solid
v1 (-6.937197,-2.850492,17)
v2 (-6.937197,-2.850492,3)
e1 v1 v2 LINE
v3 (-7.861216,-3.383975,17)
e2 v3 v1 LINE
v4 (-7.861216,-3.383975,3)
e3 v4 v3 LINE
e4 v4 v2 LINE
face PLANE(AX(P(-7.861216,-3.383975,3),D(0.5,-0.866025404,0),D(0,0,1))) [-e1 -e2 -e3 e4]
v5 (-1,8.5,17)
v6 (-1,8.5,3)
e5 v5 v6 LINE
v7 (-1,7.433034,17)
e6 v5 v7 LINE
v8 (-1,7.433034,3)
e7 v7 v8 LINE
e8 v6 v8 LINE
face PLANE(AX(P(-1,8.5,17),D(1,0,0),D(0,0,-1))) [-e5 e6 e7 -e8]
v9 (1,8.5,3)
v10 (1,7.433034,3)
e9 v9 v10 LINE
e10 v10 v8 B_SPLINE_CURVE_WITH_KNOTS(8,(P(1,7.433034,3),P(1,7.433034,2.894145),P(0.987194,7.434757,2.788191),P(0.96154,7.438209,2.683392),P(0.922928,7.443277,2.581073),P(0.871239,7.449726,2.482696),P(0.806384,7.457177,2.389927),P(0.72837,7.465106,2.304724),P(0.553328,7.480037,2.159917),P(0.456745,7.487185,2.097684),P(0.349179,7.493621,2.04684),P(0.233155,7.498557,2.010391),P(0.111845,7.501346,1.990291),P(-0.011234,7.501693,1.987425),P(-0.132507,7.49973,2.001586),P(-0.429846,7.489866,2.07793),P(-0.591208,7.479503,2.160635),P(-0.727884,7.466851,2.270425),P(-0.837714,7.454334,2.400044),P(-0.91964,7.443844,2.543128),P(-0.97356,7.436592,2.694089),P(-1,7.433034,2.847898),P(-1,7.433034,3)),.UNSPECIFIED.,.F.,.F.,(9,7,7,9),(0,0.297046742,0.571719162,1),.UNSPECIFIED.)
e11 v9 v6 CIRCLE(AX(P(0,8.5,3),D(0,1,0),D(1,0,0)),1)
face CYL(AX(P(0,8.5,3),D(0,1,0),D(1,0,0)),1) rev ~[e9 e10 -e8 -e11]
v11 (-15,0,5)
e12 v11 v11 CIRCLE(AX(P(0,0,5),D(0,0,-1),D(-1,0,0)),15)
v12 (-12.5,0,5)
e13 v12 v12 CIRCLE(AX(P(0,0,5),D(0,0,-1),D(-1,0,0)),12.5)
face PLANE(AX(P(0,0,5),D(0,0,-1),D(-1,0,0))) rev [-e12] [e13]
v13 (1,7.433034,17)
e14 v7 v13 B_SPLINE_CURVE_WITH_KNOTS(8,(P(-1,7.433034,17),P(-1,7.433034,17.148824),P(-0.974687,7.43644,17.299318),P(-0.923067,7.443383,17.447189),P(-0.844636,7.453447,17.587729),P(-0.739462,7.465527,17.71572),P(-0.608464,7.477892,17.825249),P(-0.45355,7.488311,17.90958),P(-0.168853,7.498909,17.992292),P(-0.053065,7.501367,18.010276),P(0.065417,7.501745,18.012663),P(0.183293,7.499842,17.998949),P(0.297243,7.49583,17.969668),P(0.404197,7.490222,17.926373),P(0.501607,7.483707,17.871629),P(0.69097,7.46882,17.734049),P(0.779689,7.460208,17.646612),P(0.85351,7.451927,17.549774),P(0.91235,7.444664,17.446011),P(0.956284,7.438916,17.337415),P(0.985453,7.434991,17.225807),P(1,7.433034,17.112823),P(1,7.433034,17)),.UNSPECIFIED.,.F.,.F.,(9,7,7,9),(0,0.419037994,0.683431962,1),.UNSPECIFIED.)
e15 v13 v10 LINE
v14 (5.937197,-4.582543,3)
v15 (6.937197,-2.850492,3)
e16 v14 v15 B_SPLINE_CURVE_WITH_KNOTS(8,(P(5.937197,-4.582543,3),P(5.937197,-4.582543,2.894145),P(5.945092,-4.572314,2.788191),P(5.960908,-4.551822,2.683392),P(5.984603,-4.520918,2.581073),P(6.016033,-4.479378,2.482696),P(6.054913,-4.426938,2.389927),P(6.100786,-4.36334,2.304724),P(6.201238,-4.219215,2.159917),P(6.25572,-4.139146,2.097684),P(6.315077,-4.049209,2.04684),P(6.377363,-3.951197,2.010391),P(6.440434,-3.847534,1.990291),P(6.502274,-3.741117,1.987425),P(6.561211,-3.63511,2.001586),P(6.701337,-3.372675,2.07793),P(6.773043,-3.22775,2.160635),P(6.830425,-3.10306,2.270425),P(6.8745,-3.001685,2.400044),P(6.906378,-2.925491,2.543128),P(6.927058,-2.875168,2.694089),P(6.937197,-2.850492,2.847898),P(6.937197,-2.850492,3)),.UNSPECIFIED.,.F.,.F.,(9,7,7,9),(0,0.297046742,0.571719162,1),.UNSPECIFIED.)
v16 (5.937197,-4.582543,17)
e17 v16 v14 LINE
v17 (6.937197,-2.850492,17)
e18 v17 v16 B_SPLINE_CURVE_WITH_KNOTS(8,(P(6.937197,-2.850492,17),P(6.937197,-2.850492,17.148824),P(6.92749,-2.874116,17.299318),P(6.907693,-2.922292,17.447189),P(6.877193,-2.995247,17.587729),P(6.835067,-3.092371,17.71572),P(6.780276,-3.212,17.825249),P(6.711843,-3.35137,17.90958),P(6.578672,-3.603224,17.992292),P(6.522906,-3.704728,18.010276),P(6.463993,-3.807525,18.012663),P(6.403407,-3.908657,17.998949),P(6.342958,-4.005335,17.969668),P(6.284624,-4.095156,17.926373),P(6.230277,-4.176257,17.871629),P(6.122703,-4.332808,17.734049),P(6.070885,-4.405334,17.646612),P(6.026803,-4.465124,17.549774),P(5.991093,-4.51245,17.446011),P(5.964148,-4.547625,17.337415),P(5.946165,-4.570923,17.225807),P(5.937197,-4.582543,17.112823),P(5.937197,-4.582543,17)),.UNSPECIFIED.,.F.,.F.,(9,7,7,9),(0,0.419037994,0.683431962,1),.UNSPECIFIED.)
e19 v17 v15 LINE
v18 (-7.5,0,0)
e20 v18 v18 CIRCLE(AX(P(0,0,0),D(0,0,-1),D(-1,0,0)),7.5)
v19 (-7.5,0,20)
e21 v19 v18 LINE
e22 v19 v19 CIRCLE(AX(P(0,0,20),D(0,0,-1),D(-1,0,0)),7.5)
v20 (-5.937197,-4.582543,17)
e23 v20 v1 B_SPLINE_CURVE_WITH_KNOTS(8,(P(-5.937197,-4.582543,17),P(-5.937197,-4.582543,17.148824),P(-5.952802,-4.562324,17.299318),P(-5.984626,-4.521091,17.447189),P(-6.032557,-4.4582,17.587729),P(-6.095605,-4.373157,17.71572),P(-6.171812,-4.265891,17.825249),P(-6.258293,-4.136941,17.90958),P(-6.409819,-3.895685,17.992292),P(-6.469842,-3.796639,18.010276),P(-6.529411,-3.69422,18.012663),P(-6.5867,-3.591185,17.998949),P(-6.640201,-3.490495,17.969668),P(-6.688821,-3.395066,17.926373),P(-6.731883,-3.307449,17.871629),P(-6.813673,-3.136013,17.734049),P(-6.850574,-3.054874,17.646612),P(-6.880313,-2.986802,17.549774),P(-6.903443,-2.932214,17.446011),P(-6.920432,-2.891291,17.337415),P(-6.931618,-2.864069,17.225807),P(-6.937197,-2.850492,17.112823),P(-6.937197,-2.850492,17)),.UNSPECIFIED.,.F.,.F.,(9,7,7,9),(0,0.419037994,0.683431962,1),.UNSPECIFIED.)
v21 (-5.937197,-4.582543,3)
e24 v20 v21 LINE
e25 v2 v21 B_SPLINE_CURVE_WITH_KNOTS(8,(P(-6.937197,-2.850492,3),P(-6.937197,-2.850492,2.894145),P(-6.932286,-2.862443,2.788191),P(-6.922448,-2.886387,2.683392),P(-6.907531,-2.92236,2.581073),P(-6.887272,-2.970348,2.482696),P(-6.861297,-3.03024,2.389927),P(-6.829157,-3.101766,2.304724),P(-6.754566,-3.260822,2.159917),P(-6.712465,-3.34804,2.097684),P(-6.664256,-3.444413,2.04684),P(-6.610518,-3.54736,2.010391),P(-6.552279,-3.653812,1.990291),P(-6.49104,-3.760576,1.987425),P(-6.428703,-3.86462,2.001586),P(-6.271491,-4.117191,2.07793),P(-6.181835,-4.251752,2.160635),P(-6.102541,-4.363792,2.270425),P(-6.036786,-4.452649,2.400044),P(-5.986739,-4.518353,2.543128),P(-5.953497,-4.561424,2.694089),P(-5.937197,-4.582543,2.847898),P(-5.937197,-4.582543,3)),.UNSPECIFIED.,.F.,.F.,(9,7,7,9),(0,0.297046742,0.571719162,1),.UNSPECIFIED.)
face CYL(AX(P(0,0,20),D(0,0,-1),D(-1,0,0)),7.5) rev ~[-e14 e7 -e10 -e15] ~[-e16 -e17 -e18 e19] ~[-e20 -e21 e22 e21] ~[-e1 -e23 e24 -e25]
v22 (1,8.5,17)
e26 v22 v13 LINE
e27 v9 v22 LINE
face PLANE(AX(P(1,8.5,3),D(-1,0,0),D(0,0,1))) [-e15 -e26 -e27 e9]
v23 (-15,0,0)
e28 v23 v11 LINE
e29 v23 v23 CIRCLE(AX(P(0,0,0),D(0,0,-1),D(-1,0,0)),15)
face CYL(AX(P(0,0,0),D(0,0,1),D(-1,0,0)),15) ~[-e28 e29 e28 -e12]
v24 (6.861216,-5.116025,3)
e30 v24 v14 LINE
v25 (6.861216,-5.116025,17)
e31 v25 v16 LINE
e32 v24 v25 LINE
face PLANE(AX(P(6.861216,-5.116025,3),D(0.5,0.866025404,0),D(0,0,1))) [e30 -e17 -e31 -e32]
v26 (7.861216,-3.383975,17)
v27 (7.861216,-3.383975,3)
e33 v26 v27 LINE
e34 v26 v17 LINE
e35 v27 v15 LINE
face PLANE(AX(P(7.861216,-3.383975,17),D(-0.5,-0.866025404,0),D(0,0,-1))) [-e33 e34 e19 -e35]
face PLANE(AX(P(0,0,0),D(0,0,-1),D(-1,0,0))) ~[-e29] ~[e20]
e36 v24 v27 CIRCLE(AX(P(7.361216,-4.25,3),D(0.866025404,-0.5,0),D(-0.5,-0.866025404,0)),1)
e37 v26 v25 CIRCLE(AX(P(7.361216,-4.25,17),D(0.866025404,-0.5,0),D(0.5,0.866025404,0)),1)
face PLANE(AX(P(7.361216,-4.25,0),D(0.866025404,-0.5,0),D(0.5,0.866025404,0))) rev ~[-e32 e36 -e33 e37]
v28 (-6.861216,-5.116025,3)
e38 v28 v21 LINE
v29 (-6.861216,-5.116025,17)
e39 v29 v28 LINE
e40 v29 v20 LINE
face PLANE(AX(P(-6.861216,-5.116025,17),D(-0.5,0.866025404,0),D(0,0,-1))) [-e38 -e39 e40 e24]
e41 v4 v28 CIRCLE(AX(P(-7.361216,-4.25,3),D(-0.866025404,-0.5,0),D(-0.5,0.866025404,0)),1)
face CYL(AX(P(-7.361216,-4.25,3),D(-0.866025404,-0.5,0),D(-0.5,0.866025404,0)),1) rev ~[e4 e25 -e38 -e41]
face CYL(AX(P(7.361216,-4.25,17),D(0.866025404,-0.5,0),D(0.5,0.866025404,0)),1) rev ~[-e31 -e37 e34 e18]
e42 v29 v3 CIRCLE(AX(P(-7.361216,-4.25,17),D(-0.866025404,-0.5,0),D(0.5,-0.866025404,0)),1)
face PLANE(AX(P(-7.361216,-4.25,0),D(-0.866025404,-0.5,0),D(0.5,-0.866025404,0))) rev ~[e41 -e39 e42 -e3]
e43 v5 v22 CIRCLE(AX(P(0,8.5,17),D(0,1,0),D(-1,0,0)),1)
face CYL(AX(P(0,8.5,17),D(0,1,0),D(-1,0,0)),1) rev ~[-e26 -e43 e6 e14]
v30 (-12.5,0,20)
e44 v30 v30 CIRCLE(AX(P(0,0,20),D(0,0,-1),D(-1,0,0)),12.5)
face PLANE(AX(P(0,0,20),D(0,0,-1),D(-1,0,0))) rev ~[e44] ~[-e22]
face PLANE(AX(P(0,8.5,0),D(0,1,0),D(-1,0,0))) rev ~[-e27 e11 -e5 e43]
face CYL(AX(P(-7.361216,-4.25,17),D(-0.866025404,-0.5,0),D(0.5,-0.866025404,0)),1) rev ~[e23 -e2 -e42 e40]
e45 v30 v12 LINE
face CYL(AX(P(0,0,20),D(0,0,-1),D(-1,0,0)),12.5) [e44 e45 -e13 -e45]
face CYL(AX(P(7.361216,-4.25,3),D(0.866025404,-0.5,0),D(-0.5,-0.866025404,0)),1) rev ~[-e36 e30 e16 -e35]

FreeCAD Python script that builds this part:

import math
import FreeCAD as App
import Part
import Sketcher


def add_polygon(sketch, points):
    """Adds a closed chain of lines whose ends are joined by coincident constraints."""
    first, n = sketch.GeometryCount, len(points)
    for a, b in zip(points, points[1:] + points[:1]):
        sketch.addGeometry(Part.LineSegment(App.Vector(*a, 0), App.Vector(*b, 0)), False)
    for i in range(n):
        sketch.addConstraint(Sketcher.Constraint("Coincident", first + i, 2, first + (i + 1) % n, 1))

doc = App.newDocument("Part")
body = doc.addObject("PartDesign::Body", "Body")

sketch1 = doc.addObject("Sketcher::SketchObject", "Sketch")
body.addObject(sketch1)
sketch1.AttachmentSupport = (doc.XZ_Plane, [""])
sketch1.MapMode = "FlatFace"
add_polygon(sketch1, [(-7.5, 20), (-7.5, 0), (-15, 0), (-15, 5), (-12.5, 5), (-12.5, 20)])
sketch1.addConstraint(Sketcher.Constraint("Vertical", 0))
sketch1.addConstraint(Sketcher.Constraint("Horizontal", 1))
sketch1.addConstraint(Sketcher.Constraint("Vertical", 2))
sketch1.addConstraint(Sketcher.Constraint("Horizontal", 3))
sketch1.addConstraint(Sketcher.Constraint("Vertical", 4))
sketch1.addConstraint(Sketcher.Constraint("Horizontal", 5))
sketch1.addConstraint(Sketcher.Constraint("PointOnObject", 0, 2, -1))
sketch1.addConstraint(Sketcher.Constraint("Equal", 5, 2))
sketch1.addConstraint(Sketcher.Constraint("DistanceX", 5, 1, 5, 2, 5.0))
sketch1.addConstraint(Sketcher.Constraint("DistanceY", 4, 1, 4, 2, 15.0))
sketch1.addConstraint(Sketcher.Constraint("DistanceX", 1, 2, -1, 1, 15.0))
sketch1.addConstraint(Sketcher.Constraint("DistanceX", 1, 2, 1, 1, 7.5))
revolution = doc.addObject("PartDesign::Revolution", "Revolution")
body.addObject(revolution)
revolution.Profile = sketch1
revolution.ReferenceAxis = (sketch1, ["V_Axis"])
revolution.Angle = 360

sketch2 = doc.addObject("Sketcher::SketchObject", "Sketch001")
body.addObject(sketch2)
sketch2.AttachmentSupport = (doc.XZ_Plane, [""])
sketch2.MapMode = "FlatFace"
sketch2.AttachmentOffset = App.Placement(App.Vector(0, 0, -8.5), App.Rotation())
sketch2.addGeometry(Part.LineSegment(App.Vector(-1, 3, 0), App.Vector(-1, 17, 0)), False)
sketch2.addGeometry(Part.ArcOfCircle(Part.Circle(App.Vector(0, 17, 0), App.Vector(0, 0, 1), 1), math.radians(0), math.radians(180)), False)
sketch2.addGeometry(Part.LineSegment(App.Vector(1, 17, 0), App.Vector(1, 3, 0)), False)
sketch2.addGeometry(Part.ArcOfCircle(Part.Circle(App.Vector(0, 3, 0), App.Vector(0, 0, 1), 1), math.radians(180), math.radians(360)), False)
sketch2.addConstraint(Sketcher.Constraint("Tangent", 0, 2, 1, 2))
sketch2.addConstraint(Sketcher.Constraint("Tangent", 1, 1, 2, 1))
sketch2.addConstraint(Sketcher.Constraint("Tangent", 2, 2, 3, 2))
sketch2.addConstraint(Sketcher.Constraint("Tangent", 3, 1, 0, 1))
sketch2.addConstraint(Sketcher.Constraint("Vertical", 0))
sketch2.addConstraint(Sketcher.Constraint("Vertical", 2))
sketch2.addConstraint(Sketcher.Constraint("PointOnObject", 1, 3, -2))
sketch2.addConstraint(Sketcher.Constraint("Radius", 1, 1.0))
sketch2.addConstraint(Sketcher.Constraint("DistanceY", 0, 1, 0, 2, 14.0))
sketch2.addConstraint(Sketcher.Constraint("DistanceY", -1, 1, 1, 3, 17.0))
pocket1 = doc.addObject("PartDesign::Pocket", "Pocket")
body.addObject(pocket1)
pocket1.Profile = sketch2
pocket1.Type = "UpToFirst"
pocket1.Reversed = True
doc.recompute()

polarpattern = doc.addObject("PartDesign::PolarPattern", "PolarPattern")
body.addObject(polarpattern)
polarpattern.Originals = [pocket1]
polarpattern.Axis = (doc.Z_Axis, [""])
polarpattern.Angle = 360
polarpattern.Occurrences = 3
body.Tip = polarpattern

doc.recompute()
